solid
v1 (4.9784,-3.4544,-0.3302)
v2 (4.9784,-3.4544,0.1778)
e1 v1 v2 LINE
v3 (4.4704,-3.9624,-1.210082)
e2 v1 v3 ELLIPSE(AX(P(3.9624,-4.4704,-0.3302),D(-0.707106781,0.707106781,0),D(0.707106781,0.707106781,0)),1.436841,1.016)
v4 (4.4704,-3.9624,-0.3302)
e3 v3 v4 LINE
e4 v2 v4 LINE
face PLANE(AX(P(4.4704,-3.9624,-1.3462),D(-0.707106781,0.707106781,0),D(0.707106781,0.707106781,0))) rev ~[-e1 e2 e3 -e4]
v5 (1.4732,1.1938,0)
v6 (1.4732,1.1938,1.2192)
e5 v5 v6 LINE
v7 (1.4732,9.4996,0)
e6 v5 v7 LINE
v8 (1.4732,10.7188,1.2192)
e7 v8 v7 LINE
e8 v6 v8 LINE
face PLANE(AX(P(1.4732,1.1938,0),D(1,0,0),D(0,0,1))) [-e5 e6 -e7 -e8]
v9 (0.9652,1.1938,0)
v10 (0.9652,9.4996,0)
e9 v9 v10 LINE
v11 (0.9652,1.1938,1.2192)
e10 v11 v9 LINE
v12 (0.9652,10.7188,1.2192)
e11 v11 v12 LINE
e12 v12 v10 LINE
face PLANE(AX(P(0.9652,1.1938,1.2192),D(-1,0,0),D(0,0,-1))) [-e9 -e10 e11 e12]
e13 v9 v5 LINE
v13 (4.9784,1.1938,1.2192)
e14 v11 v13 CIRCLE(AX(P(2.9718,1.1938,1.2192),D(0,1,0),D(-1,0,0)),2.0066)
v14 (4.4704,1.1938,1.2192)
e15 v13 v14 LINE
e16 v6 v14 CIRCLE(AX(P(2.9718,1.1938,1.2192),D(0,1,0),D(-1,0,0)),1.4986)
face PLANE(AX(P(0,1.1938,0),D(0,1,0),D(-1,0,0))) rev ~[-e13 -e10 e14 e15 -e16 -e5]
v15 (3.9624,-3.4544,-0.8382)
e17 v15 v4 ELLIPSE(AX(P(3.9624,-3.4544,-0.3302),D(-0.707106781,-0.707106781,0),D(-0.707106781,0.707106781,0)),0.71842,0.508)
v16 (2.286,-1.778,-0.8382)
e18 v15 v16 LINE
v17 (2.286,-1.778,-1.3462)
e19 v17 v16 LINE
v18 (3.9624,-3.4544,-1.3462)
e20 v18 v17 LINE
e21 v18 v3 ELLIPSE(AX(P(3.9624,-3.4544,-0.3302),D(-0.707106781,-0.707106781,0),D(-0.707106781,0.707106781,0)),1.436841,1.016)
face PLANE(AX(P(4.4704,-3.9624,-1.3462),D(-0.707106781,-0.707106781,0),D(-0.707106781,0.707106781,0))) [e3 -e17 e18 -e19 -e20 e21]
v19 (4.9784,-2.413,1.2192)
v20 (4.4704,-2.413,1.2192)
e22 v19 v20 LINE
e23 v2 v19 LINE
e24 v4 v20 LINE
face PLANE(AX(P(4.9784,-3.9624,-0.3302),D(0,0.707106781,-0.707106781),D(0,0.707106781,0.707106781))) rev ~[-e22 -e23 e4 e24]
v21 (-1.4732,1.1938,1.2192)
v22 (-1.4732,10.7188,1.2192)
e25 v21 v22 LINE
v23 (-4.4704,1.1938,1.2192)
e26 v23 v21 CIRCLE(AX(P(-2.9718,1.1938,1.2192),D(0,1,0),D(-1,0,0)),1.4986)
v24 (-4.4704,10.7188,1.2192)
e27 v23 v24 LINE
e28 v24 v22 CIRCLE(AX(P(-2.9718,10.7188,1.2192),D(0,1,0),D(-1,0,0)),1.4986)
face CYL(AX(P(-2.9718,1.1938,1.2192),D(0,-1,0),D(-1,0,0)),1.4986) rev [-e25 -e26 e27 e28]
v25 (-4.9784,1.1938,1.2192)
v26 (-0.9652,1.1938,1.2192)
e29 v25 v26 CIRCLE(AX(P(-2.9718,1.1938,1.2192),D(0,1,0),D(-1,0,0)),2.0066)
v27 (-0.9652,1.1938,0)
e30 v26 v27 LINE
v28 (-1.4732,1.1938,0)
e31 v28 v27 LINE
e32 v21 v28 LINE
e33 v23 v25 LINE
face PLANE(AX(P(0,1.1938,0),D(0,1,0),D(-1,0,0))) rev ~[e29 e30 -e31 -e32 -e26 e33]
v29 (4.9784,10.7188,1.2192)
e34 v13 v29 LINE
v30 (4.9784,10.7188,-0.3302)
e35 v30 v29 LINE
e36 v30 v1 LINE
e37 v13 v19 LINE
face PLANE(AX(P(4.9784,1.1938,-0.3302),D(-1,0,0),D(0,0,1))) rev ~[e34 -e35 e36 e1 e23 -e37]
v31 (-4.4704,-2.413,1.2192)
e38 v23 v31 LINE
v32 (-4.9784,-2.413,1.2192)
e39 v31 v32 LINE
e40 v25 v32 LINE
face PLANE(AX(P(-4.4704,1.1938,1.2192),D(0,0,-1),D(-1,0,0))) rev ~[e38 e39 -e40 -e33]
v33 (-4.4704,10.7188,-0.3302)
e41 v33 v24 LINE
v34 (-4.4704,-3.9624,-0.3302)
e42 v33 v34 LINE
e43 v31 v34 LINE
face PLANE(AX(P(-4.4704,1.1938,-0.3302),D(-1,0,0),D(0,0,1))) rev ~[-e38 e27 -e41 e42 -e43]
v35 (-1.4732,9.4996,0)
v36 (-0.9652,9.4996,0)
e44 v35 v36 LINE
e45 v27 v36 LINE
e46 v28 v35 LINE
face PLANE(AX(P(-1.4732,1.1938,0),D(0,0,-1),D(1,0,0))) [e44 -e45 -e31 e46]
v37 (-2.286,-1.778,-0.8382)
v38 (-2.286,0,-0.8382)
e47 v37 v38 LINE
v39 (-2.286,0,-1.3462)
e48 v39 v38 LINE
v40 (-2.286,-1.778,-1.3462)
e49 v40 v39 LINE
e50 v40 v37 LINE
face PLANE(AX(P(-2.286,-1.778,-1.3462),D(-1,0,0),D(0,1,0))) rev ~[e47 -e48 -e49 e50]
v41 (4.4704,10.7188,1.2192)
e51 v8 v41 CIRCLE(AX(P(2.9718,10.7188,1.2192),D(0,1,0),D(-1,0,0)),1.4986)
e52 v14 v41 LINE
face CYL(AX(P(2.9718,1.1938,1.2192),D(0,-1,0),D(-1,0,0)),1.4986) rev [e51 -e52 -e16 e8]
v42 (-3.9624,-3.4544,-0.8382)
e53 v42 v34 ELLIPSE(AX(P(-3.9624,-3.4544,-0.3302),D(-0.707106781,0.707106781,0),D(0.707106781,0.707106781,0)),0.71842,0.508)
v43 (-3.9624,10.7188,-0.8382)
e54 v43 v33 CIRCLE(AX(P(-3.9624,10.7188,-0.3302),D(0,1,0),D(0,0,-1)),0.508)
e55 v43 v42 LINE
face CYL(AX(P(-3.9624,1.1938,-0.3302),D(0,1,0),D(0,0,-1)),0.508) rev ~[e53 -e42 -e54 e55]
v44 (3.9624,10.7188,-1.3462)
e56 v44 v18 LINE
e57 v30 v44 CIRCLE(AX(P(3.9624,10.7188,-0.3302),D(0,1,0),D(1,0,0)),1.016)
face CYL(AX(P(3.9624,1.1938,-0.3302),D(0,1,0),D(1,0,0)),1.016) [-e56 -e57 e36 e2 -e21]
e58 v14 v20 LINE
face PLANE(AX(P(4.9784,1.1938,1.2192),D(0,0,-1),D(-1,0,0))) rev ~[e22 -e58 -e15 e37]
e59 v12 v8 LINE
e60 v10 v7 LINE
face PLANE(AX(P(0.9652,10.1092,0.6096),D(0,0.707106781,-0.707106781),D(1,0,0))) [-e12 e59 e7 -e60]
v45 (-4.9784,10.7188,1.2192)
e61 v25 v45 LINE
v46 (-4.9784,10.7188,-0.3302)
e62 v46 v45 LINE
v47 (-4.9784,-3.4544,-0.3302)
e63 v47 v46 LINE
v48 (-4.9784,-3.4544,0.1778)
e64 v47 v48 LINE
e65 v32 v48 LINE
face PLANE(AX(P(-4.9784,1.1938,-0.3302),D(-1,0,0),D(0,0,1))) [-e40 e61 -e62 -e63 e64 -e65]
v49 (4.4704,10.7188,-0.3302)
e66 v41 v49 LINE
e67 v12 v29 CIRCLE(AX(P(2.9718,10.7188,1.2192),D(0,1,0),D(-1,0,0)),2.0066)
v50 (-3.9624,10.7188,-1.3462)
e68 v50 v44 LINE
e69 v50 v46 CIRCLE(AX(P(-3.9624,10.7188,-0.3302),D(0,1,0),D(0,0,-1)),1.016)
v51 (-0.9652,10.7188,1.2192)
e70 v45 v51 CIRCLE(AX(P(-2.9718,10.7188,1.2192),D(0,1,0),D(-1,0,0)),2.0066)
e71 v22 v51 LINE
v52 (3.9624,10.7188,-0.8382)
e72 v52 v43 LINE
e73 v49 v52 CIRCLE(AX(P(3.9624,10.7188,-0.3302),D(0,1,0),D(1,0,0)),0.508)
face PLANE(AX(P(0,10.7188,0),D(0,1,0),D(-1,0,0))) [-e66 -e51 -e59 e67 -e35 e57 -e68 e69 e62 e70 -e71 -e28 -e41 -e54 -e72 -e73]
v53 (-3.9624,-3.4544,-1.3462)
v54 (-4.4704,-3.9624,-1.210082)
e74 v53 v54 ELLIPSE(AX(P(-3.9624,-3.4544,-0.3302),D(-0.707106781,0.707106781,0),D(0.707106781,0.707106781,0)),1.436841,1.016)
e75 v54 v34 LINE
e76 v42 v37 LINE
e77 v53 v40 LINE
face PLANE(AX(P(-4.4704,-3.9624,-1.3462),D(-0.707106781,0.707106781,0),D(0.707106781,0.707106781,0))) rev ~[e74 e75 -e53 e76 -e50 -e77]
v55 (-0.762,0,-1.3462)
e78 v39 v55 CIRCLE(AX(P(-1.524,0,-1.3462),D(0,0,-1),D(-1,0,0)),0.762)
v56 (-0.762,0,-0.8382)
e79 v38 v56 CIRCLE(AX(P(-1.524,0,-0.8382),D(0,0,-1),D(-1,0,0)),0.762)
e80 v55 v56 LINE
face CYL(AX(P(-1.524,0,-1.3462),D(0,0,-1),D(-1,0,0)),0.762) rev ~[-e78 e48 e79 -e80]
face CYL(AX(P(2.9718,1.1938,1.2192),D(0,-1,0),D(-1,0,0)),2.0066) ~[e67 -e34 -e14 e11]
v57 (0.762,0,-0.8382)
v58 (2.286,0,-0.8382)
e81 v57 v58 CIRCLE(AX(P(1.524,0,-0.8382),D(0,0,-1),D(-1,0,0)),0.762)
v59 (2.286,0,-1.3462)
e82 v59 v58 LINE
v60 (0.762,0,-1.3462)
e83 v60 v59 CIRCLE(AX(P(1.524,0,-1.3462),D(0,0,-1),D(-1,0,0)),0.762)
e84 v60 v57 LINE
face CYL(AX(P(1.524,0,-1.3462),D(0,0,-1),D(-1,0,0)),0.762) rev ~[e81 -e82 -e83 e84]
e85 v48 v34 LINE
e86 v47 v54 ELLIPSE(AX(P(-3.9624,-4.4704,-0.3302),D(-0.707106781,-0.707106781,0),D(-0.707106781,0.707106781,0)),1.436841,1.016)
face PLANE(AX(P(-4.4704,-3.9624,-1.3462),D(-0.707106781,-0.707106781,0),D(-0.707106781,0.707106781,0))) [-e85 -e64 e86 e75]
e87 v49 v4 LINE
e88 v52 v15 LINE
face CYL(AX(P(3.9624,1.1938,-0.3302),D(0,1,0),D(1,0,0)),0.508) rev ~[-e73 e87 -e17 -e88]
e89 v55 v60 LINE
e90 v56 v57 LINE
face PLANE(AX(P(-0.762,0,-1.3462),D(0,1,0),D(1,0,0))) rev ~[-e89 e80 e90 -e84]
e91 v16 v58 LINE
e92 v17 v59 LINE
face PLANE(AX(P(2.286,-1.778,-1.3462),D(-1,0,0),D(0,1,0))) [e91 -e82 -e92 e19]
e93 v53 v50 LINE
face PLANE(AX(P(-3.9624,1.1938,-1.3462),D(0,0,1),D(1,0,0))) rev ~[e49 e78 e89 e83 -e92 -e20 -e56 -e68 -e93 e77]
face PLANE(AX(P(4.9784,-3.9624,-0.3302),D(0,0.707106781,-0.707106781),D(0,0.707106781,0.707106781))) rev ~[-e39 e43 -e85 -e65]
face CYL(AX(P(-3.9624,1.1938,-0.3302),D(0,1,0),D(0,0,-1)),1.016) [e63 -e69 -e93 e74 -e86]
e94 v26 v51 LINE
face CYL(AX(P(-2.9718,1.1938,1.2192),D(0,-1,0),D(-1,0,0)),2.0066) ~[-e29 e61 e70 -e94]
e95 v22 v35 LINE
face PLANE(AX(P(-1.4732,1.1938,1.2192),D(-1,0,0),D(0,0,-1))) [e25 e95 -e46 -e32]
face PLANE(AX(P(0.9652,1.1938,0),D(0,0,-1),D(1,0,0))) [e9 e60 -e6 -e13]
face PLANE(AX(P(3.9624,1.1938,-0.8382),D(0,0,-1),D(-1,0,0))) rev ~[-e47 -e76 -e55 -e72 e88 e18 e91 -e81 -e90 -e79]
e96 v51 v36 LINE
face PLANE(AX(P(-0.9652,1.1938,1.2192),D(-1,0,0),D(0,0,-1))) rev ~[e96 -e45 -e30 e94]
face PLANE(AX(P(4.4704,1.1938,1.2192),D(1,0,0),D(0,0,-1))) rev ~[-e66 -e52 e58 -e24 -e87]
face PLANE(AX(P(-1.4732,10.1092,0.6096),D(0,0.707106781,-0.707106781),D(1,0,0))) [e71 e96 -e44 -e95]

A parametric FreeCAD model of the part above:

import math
import FreeCAD as App
import Part
import Sketcher

V = App.Vector
Q = App.Units.Quantity


def edges_at(feature, points):
    """Names of the edges that pass closest to the given points."""
    edges = feature.Shape.Edges
    near = lambda p: min(range(len(edges)), key=lambda i: edges[i].distToShape(Part.Vertex(*p))[0])
    return sorted({f"Edge{near(p) + 1}" for p in points})

doc = App.newDocument("Part")
body = doc.addObject("PartDesign::Body", "Body")

# Sketch on XZ plane
sketch1 = body.newObject("Sketcher::SketchObject", "Sketch")
sketch1.AttachmentSupport = (doc.getObject("XZ_Plane"), [""])
sketch1.MapMode = "FlatFace"
sketch1.AttachmentOffset = App.Placement(V(0, 0, -0.047 * 25.4), App.Rotation())
sketch1.addGeometry([
    Part.LineSegment(V(4, -1.3, 0), V(-4, -1.3, 0)),  # 0
    Part.ArcOfCircle(Part.Circle(V(-4, -0.3, 0), V(0, 0, 1), 1), math.radians(180), math.radians(270)),  # 1
    Part.LineSegment(V(-5, -0.3, 0), V(-5, 1.2, 0)),  # 2
    Part.ArcOfCircle(Part.Circle(V(-3, 1.2, 0), V(0, 0, 1), 2), math.radians(0), math.radians(180)),  # 3
    Part.LineSegment(V(-1, 1.2, 0), V(-1, 0, 0)),  # 4
    Part.LineSegment(V(-1, 0, 0), V(-1.5, 0, 0)),  # 5
    Part.LineSegment(V(-1.5, 0, 0), V(-1.5, 1.2, 0)),  # 6
    Part.ArcOfCircle(Part.Circle(V(-3, 1.2, 0), V(0, 0, 1), 1.5), math.radians(0), math.radians(180)),  # 7
    Part.LineSegment(V(-4.5, 1.2, 0), V(-4.5, -0.3, 0)),  # 8
    Part.ArcOfCircle(Part.Circle(V(-4, -0.3, 0), V(0, 0, 1), 0.5), math.radians(180), math.radians(270)),  # 9
    Part.LineSegment(V(-4, -0.8, 0), V(4, -0.8, 0)),  # 10
    Part.ArcOfCircle(Part.Circle(V(4, -0.3, 0), V(0, 0, 1), 0.5), math.radians(-90), math.radians(0)),  # 11
    Part.LineSegment(V(4.5, -0.3, 0), V(4.5, 1.2, 0)),  # 12
    Part.ArcOfCircle(Part.Circle(V(3, 1.2, 0), V(0, 0, 1), 1.5), math.radians(0), math.radians(180)),  # 13
    Part.LineSegment(V(1.5, 1.2, 0), V(1.5, 0, 0)),  # 14
    Part.LineSegment(V(1.5, 0, 0), V(1, 0, 0)),  # 15
    Part.LineSegment(V(1, 0, 0), V(1, 1.2, 0)),  # 16
    Part.ArcOfCircle(Part.Circle(V(3, 1.2, 0), V(0, 0, 1), 2), math.radians(0), math.radians(180)),  # 17
    Part.LineSegment(V(5, 1.2, 0), V(5, -0.3, 0)),  # 18
    Part.ArcOfCircle(Part.Circle(V(4, -0.3, 0), V(0, 0, 1), 1), math.radians(-90), math.radians(0)),  # 19
], False)
sketch1.addConstraint([
    Sketcher.Constraint("Tangent", 0, 2, 1, 2),
    Sketcher.Constraint("Tangent", 1, 1, 2, 1),
    Sketcher.Constraint("Tangent", 2, 2, 3, 2),
    Sketcher.Constraint("Tangent", 3, 1, 4, 1),
    Sketcher.Constraint("Coincident", 4, 2, 5, 1),
    Sketcher.Constraint("Coincident", 5, 2, 6, 1),
    Sketcher.Constraint("Tangent", 6, 2, 7, 1),
    Sketcher.Constraint("Tangent", 7, 2, 8, 1),
    Sketcher.Constraint("Tangent", 8, 2, 9, 1),
    Sketcher.Constraint("Tangent", 9, 2, 10, 1),
    Sketcher.Constraint("Tangent", 10, 2, 11, 1),
    Sketcher.Constraint("Tangent", 11, 2, 12, 1),
    Sketcher.Constraint("Tangent", 12, 2, 13, 1),
    Sketcher.Constraint("Tangent", 13, 2, 14, 1),
    Sketcher.Constraint("Coincident", 14, 2, 15, 1),
    Sketcher.Constraint("Coincident", 15, 2, 16, 1),
    Sketcher.Constraint("Tangent", 16, 2, 17, 2),
    Sketcher.Constraint("Tangent", 17, 1, 18, 1),
    Sketcher.Constraint("Tangent", 18, 2, 19, 2),
    Sketcher.Constraint("Tangent", 19, 1, 0, 1),
    Sketcher.Constraint("Horizontal", 0),
    Sketcher.Constraint("Vertical", 2),
    Sketcher.Constraint("Vertical", 4),
    Sketcher.Constraint("Horizontal", 5),
    Sketcher.Constraint("Vertical", 6),
    Sketcher.Constraint("Vertical", 8),
    Sketcher.Constraint("Horizontal", 10),
    Sketcher.Constraint("Vertical", 12),
    Sketcher.Constraint("Vertical", 14),
    Sketcher.Constraint("Horizontal", 15),
    Sketcher.Constraint("Vertical", 16),
    Sketcher.Constraint("Vertical", 18),
    Sketcher.Constraint("Coincident", 7, 3, 3, 3),
    Sketcher.Constraint("Coincident", 9, 3, 1, 3),
    Sketcher.Constraint("Coincident", 17, 3, 13, 3),
    Sketcher.Constraint("Coincident", 19, 3, 11, 3),
    Sketcher.Constraint("Equal", 9, 11),
    Sketcher.Constraint("Equal", 7, 13),
    Sketcher.Constraint("Symmetric", 5, 2, 14, 2, -1, 1),
    Sketcher.Constraint("PointOnObject", 4, 2, -1),
    Sketcher.Constraint("Horizontal", 7, 3, 13, 3),
    Sketcher.Constraint("Radius", 1, Q("0.04 in")),
    Sketcher.Constraint("Radius", 9, Q("0.02 in")),
    Sketcher.Constraint("DistanceY", 0, 2, -1, 1, Q("0.053 in")),
    Sketcher.Constraint("Radius", 3, Q("0.079 in")),
    Sketcher.Constraint("DistanceX", 4, 2, 15, 2, Q("0.076 in")),
    Sketcher.Constraint("DistanceY", 2, 1, 2, 2, Q("0.061 in")),
])
pad1 = body.newObject("PartDesign::Pad", "Pad")
pad1.Profile = sketch1
pad1.Length = Q("0.375 in")
pad1.Reversed = True

# Sketch on XZ plane
sketch2 = body.newObject("Sketcher::SketchObject", "Sketch001")
sketch2.AttachmentSupport = (doc.getObject("XZ_Plane"), [""])
sketch2.MapMode = "FlatFace"
sketch2.AttachmentOffset = App.Placement(V(0, 0, -0.047 * 25.4), App.Rotation())
sketch2.addGeometry([
    Part.LineSegment(V(4, -1.3, 0), V(-4, -1.3, 0)),  # 0
    Part.ArcOfCircle(Part.Circle(V(-4, -0.3, 0), V(0, 0, 1), 1), math.radians(180), math.radians(270)),  # 1
    Part.LineSegment(V(-5, -0.3, 0), V(-5, 1.2, 0)),  # 2
    Part.LineSegment(V(-5, 1.2, 0), V(-4.5, 1.2, 0)),  # 3
    Part.LineSegment(V(-4.5, 1.2, 0), V(-4.5, -0.3, 0)),  # 4
    Part.ArcOfCircle(Part.Circle(V(-4, -0.3, 0), V(0, 0, 1), 0.5), math.radians(180), math.radians(270)),  # 5
    Part.LineSegment(V(-4, -0.8, 0), V(4, -0.8, 0)),  # 6
    Part.ArcOfCircle(Part.Circle(V(4, -0.3, 0), V(0, 0, 1), 0.5), math.radians(-90), math.radians(0)),  # 7
    Part.LineSegment(V(4.5, -0.3, 0), V(4.5, 1.2, 0)),  # 8
    Part.LineSegment(V(4.5, 1.2, 0), V(5, 1.2, 0)),  # 9
    Part.LineSegment(V(5, 1.2, 0), V(5, -0.3, 0)),  # 10
    Part.ArcOfCircle(Part.Circle(V(4, -0.3, 0), V(0, 0, 1), 1), math.radians(-90), math.radians(0)),  # 11
], False)
sketch2.addConstraint([
    Sketcher.Constraint("Tangent", 0, 2, 1, 2),
    Sketcher.Constraint("Tangent", 1, 1, 2, 1),
    Sketcher.Constraint("Coincident", 2, 2, 3, 1),
    Sketcher.Constraint("Coincident", 3, 2, 4, 1),
    Sketcher.Constraint("Tangent", 4, 2, 5, 1),
    Sketcher.Constraint("Tangent", 5, 2, 6, 1),
    Sketcher.Constraint("Tangent", 6, 2, 7, 1),
    Sketcher.Constraint("Tangent", 7, 2, 8, 1),
    Sketcher.Constraint("Coincident", 8, 2, 9, 1),
    Sketcher.Constraint("Coincident", 9, 2, 10, 1),
    Sketcher.Constraint("Tangent", 10, 2, 11, 2),
    Sketcher.Constraint("Tangent", 11, 1, 0, 1),
    Sketcher.Constraint("Horizontal", 0),
    Sketcher.Constraint("Vertical", 2),
    Sketcher.Constraint("Horizontal", 3),
    Sketcher.Constraint("Vertical", 4),
    Sketcher.Constraint("Horizontal", 6),
    Sketcher.Constraint("Vertical", 8),
    Sketcher.Constraint("Horizontal", 9),
    Sketcher.Constraint("Vertical", 10),
    Sketcher.Constraint("Coincident", 5, 3, 1, 3),
    Sketcher.Constraint("Coincident", 11, 3, 7, 3),
    Sketcher.Constraint("Equal", 5, 7),
    Sketcher.Constraint("Symmetric", 3, 2, 8, 2, -2),
    Sketcher.Constraint("Radius", 1, Q("0.04 in")),
    Sketcher.Constraint("Radius", 5, Q("0.02 in")),
    Sketcher.Constraint("DistanceY", 0, 2, -1, 1, Q("0.053 in")),
    Sketcher.Constraint("DistanceX", 0, 2, 0, 1, Q("0.312 in")),
    Sketcher.Constraint("DistanceY", 2, 1, 2, 2, Q("0.061 in")),
])
pad2 = body.newObject("PartDesign::Pad", "Pad001")
pad2.Profile = sketch2
pad2.Length = Q("0.203 in")

# Sketch on XY plane
sketch3 = body.newObject("Sketcher::SketchObject", "Sketch002")
sketch3.AttachmentSupport = (doc.getObject("XY_Plane"), [""])
sketch3.MapMode = "FlatFace"
sketch3.AttachmentOffset = App.Placement(V(0, 0, -0.053 * 25.4), App.Rotation())
sketch3.addGeometry([
    Part.LineSegment(V(2.3, -1.8, 0), V(4.5, -4, 0)),  # 0
    Part.LineSegment(V(4.5, -4, 0), V(5, -3.5, 0)),  # 1
    Part.LineSegment(V(5, -3.5, 0), V(6.2, -6, 0)),  # 2
    Part.LineSegment(V(6.2, -6, 0), V(-6, -6, 0)),  # 3
    Part.LineSegment(V(-6, -6, 0), V(-5, -3.5, 0)),  # 4
    Part.LineSegment(V(-5, -3.5, 0), V(-4.5, -4, 0)),  # 5
    Part.LineSegment(V(-4.5, -4, 0), V(-2.3, -1.8, 0)),  # 6
    Part.LineSegment(V(-2.3, -1.8, 0), V(-2.3, 0, 0)),  # 7
    Part.ArcOfCircle(Part.Circle(V(-1.5, 0, 0), V(0, 0, 1), 0.8), math.radians(0), math.radians(180)),  # 8
    Part.LineSegment(V(-0.8, 0, 0), V(0.8, 0, 0)),  # 9
    Part.ArcOfCircle(Part.Circle(V(1.5, 0, 0), V(0, 0, 1), 0.8), math.radians(0), math.radians(180)),  # 10
    Part.LineSegment(V(2.3, 0, 0), V(2.3, -1.8, 0)),  # 11
], False)
sketch3.addConstraint([
    Sketcher.Constraint("Coincident", 0, 2, 1, 1),
    Sketcher.Constraint("Coincident", 1, 2, 2, 1),
    Sketcher.Constraint("Coincident", 2, 2, 3, 1),
    Sketcher.Constraint("Coincident", 3, 2, 4, 1),
    Sketcher.Constraint("Coincident", 4, 2, 5, 1),
    Sketcher.Constraint("Coincident", 5, 2, 6, 1),
    Sketcher.Constraint("Coincident", 6, 2, 7, 1),
    Sketcher.Constraint("Tangent", 7, 2, 8, 2),
    Sketcher.Constraint("Coincident", 8, 1, 9, 1),
    Sketcher.Constraint("Coincident", 9, 2, 10, 2),
    Sketcher.Constraint("Tangent", 10, 1, 11, 1),
    Sketcher.Constraint("Coincident", 11, 2, 0, 1),
    Sketcher.Constraint("Horizontal", 3),
    Sketcher.Constraint("Vertical", 7),
    Sketcher.Constraint("Horizontal", 9),
    Sketcher.Constraint("Vertical", 11),
    Sketcher.Constraint("Equal", 8, 10),
    Sketcher.Constraint("Symmetric", 8, 3, 10, 3, -1, 1),
    Sketcher.Constraint("Symmetric", 1, 2, 4, 2, -2),
    Sketcher.Constraint("Symmetric", 0, 2, 5, 2, -2),
    Sketcher.Constraint("PointOnObject", 8, 3, -1),
    Sketcher.Constraint("PointOnObject", 8, 1, -1),
    Sketcher.Constraint("Perpendicular", 0, 1),
    Sketcher.Constraint("Perpendicular", 1, 5),
    Sketcher.Constraint("Perpendicular", 5, 6),
    Sketcher.Constraint("Radius", 8, Q("0.03 in")),
    Sketcher.Constraint("DistanceX", 9, 1, 9, 2, Q("0.06 in")),
    Sketcher.Constraint("DistanceY", 7, 1, 7, 2, Q("0.07 in")),
    Sketcher.Constraint("Angle", 4, Q("67.5406 deg")),
    Sketcher.Constraint("DistanceX", 0, 2, 1, 2, Q("0.02 in")),
    Sketcher.Constraint("DistanceX", 3, 2, 3, 1, Q("0.4802 in")),
    Sketcher.Constraint("DistanceX", -1, 1, 0, 2, Q("0.176 in")),
    Sketcher.Constraint("Distance", 2, Q("0.1095 in")),
])
pocket1 = body.newObject("PartDesign::Pocket", "Pocket")
pocket1.Profile = sketch3
pocket1.Type = "ThroughAll"
pocket1.Reversed = True

# Sketch on YZ plane
sketch4 = body.newObject("Sketcher::SketchObject", "Sketch003")
sketch4.AttachmentSupport = (doc.getObject("YZ_Plane"), [""])
sketch4.MapMode = "FlatFace"
sketch4.AttachmentOffset = App.Placement(V(0, 0, 0.196 * 25.4), App.Rotation())
sketch4.addGeometry([
    Part.LineSegment(V(-4.4, 2.7, 0), V(-4, -0.3, 0)),
    Part.LineSegment(V(-4, -0.3, 0), V(-2.4, 1.2, 0)),
    Part.LineSegment(V(-2.4, 1.2, 0), V(-4.4, 2.7, 0)),
], False)
sketch4.addConstraint([
    Sketcher.Constraint("Coincident", 0, 2, 1, 1),
    Sketcher.Constraint("Coincident", 1, 2, 2, 1),
    Sketcher.Constraint("Coincident", 2, 2, 0, 1),
    Sketcher.Constraint("Angle", 1, Q("45 deg")),
    Sketcher.Constraint("Distance", 0, Q("0.12 in")),
    Sketcher.Constraint("Angle", 2, Q("143.1805 deg")),
    Sketcher.Constraint("DistanceX", 0, 2, -1, 1, Q("0.156 in")),
    Sketcher.Constraint("DistanceY", 0, 2, -1, 1, Q("0.013 in")),
    Sketcher.Constraint("DistanceX", 1, 2, -1, 1, Q("0.095 in")),
])
pocket2 = body.newObject("PartDesign::Pocket", "Pocket001")
pocket2.Profile = sketch4
pocket2.Type = "ThroughAll"
doc.recompute()

chamfer = body.newObject("PartDesign::Chamfer", "Chamfer")
chamfer.Base = (pocket2, edges_at(pocket2, [(-1.219, 10.719, 0), (1.219, 10.719, 0)]))
chamfer.Size = Q("0.048 in")

doc.recompute()
